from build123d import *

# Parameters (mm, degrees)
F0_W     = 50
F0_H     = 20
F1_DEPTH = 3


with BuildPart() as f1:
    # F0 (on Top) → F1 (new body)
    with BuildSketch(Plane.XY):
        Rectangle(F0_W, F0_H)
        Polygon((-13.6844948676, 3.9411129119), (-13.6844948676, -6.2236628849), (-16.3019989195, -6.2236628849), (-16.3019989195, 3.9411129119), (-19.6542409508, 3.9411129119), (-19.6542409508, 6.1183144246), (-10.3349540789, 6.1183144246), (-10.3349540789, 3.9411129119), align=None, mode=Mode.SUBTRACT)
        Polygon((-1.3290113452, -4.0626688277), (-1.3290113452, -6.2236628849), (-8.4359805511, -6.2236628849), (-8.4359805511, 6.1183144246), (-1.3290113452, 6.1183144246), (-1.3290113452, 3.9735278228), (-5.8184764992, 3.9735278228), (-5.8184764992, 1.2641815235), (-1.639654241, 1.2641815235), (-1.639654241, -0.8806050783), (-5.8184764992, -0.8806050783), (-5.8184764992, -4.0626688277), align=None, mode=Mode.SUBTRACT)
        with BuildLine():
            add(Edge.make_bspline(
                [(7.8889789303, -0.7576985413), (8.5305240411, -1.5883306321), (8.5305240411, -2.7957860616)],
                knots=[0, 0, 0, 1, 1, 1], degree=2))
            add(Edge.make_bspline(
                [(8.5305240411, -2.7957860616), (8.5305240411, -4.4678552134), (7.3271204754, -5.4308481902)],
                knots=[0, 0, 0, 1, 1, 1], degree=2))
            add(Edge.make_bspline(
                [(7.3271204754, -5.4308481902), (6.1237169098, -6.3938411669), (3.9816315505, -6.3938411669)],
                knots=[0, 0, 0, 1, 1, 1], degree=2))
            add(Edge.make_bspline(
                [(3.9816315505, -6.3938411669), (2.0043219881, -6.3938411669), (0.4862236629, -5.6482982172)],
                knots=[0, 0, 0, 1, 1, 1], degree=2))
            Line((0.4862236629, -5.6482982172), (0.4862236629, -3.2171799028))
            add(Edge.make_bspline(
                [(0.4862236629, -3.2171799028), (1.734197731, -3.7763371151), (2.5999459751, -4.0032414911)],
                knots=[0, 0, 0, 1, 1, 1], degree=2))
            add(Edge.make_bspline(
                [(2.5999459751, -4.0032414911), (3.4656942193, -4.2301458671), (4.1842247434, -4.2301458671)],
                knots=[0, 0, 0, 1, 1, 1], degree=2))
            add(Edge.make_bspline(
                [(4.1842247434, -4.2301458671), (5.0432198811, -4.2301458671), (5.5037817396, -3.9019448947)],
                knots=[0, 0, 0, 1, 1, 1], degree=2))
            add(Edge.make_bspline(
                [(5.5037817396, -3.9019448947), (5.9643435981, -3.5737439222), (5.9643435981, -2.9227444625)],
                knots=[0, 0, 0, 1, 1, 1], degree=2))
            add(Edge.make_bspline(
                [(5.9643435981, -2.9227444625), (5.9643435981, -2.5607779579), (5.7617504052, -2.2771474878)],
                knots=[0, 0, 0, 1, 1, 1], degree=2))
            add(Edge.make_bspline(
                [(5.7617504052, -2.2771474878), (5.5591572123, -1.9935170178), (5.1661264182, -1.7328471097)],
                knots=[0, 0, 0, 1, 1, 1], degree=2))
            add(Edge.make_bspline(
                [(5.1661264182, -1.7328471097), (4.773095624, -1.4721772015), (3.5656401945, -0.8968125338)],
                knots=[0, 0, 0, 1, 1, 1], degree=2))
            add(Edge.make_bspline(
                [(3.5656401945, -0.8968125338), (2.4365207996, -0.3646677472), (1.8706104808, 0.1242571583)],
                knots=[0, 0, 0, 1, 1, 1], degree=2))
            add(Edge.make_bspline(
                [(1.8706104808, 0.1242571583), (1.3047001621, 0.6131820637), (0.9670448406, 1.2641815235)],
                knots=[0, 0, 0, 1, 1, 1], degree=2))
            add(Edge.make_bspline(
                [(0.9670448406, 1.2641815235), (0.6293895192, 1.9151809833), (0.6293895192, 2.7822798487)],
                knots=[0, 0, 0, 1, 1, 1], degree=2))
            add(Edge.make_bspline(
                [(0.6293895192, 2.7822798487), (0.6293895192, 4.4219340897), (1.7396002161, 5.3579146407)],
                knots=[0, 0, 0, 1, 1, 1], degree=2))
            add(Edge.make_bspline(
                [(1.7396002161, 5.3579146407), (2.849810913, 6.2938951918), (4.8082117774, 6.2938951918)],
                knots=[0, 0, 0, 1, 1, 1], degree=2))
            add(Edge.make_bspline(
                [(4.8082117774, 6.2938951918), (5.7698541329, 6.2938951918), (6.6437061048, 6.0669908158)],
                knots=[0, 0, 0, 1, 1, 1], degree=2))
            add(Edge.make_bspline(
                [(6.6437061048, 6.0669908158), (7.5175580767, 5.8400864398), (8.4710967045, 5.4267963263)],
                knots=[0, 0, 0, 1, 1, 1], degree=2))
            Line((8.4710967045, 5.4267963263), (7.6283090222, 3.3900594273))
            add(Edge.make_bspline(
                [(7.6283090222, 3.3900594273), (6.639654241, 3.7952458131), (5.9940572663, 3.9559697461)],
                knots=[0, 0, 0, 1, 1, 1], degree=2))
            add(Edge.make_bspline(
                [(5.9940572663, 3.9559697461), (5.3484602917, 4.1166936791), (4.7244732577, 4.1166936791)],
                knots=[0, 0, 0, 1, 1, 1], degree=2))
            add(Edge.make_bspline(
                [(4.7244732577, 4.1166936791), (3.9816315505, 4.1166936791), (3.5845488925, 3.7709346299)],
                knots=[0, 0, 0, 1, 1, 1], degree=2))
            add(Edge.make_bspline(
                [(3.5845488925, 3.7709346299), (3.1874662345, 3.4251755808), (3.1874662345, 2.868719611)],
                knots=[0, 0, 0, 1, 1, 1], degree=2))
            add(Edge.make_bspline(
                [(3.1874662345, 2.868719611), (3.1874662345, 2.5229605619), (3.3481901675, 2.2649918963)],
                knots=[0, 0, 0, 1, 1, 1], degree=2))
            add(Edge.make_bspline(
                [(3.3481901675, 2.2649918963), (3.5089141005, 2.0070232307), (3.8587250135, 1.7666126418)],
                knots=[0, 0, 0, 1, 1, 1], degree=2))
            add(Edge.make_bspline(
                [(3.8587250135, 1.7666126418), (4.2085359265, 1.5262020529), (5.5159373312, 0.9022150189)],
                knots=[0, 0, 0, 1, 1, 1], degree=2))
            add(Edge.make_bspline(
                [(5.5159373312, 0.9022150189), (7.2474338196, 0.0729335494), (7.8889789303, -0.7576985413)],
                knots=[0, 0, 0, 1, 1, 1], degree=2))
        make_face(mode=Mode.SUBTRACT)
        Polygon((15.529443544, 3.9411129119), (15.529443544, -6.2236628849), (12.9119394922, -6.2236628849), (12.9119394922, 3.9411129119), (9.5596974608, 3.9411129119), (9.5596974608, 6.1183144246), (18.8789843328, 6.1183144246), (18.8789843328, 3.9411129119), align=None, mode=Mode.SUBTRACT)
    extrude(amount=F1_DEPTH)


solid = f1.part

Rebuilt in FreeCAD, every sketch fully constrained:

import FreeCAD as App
import Part
import Sketcher

V = App.Vector
Q = App.Units.Quantity

doc = App.newDocument("Part")
body = doc.addObject("PartDesign::Body", "Body")

sketch1 = body.newObject("Sketcher::SketchObject", "Sketch")
sketch1.AttachmentSupport = (doc.getObject("XY_Plane"), [""])
sketch1.MapMode = "FlatFace"
sketch1.addGeometry(Part.LineSegment(V(-25, 10, 0), V(-25, -10, 0)), False)
sketch1.addGeometry(Part.LineSegment(V(-25, -10, 0), V(25, -10, 0)), False)
sketch1.addGeometry(Part.LineSegment(V(25, -10, 0), V(25, 10, 0)), False)
sketch1.addGeometry(Part.LineSegment(V(25, 10, 0), V(-25, 10, 0)), False)
sketch1.addGeometry(Part.LineSegment(V(-10.334954, 3.941113, 0), V(-13.684495, 3.941113, 0)), False)
sketch1.addGeometry(Part.LineSegment(V(-13.684495, 3.941113, 0), V(-13.684495, -6.223663, 0)), False)
sketch1.addGeometry(Part.LineSegment(V(-13.684495, -6.223663, 0), V(-16.301999, -6.223663, 0)), False)
sketch1.addGeometry(Part.LineSegment(V(-16.301999, -6.223663, 0), V(-16.301999, 3.941113, 0)), False)
sketch1.addGeometry(Part.LineSegment(V(-16.301999, 3.941113, 0), V(-19.654241, 3.941113, 0)), False)
sketch1.addGeometry(Part.LineSegment(V(-19.654241, 3.941113, 0), V(-19.654241, 6.118314, 0)), False)
sketch1.addGeometry(Part.LineSegment(V(-19.654241, 6.118314, 0), V(-10.334954, 6.118314, 0)), False)
sketch1.addGeometry(Part.LineSegment(V(-10.334954, 6.118314, 0), V(-10.334954, 3.941113, 0)), False)
sketch1.addGeometry(Part.LineSegment(V(-5.818476, -4.062669, 0), V(-1.329011, -4.062669, 0)), False)
sketch1.addGeometry(Part.LineSegment(V(-1.329011, -4.062669, 0), V(-1.329011, -6.223663, 0)), False)
sketch1.addGeometry(Part.LineSegment(V(-1.329011, -6.223663, 0), V(-8.435981, -6.223663, 0)), False)
sketch1.addGeometry(Part.LineSegment(V(-8.435981, -6.223663, 0), V(-8.435981, 6.118314, 0)), False)
sketch1.addGeometry(Part.LineSegment(V(-8.435981, 6.118314, 0), V(-1.329011, 6.118314, 0)), False)
sketch1.addGeometry(Part.LineSegment(V(-1.329011, 6.118314, 0), V(-1.329011, 3.973528, 0)), False)
sketch1.addGeometry(Part.LineSegment(V(-1.329011, 3.973528, 0), V(-5.818476, 3.973528, 0)), False)
sketch1.addGeometry(Part.LineSegment(V(-5.818476, 3.973528, 0), V(-5.818476, 1.264182, 0)), False)
sketch1.addGeometry(Part.LineSegment(V(-5.818476, 1.264182, 0), V(-1.639654, 1.264182, 0)), False)
sketch1.addGeometry(Part.LineSegment(V(-1.639654, 1.264182, 0), V(-1.639654, -0.880605, 0)), False)
sketch1.addGeometry(Part.LineSegment(V(-1.639654, -0.880605, 0), V(-5.818476, -0.880605, 0)), False)
sketch1.addGeometry(Part.LineSegment(V(-5.818476, -0.880605, 0), V(-5.818476, -4.062669, 0)), False)
sketch1.addGeometry(Part.LineSegment(V(18.878984, 3.941113, 0), V(15.529444, 3.941113, 0)), False)
sketch1.addGeometry(Part.LineSegment(V(15.529444, 3.941113, 0), V(15.529444, -6.223663, 0)), False)
sketch1.addGeometry(Part.LineSegment(V(15.529444, -6.223663, 0), V(12.911939, -6.223663, 0)), False)
sketch1.addGeometry(Part.LineSegment(V(12.911939, -6.223663, 0), V(12.911939, 3.941113, 0)), False)
sketch1.addGeometry(Part.LineSegment(V(12.911939, 3.941113, 0), V(9.559697, 3.941113, 0)), False)
sketch1.addGeometry(Part.LineSegment(V(9.559697, 3.941113, 0), V(9.559697, 6.118314, 0)), False)
sketch1.addGeometry(Part.LineSegment(V(9.559697, 6.118314, 0), V(18.878984, 6.118314, 0)), False)
sketch1.addGeometry(Part.LineSegment(V(18.878984, 6.118314, 0), V(18.878984, 3.941113, 0)), False)
sketch1.addGeometry(Part.BSplineCurve([V(5.515937, 0.902215, 0), V(7.247434, 0.072934, 0), V(7.888979, -0.757699, 0)], [3, 3], [0, 1], False, 2, [1, 1, 1], False), False)
sketch1.addGeometry(Part.BSplineCurve([V(7.888979, -0.757699, 0), V(8.530524, -1.588331, 0), V(8.530524, -4.467855, 0), V(7.32712, -5.430848, 0)], [3, 1, 3], [0, 1, 2.384787472], False, 2, [1, 1, 1, 1], False), False)
sketch1.addGeometry(Part.BSplineCurve([V(7.32712, -5.430848, 0), V(6.123717, -6.393841, 0), V(2.004322, -6.393841, 0), V(0.486224, -5.648298, 0)], [3, 1, 3], [0, 1, 1.923076923], False, 2, [1, 1, 1, 1], False), False)
sketch1.addGeometry(Part.LineSegment(V(0.486224, -5.648298, 0), V(0.486224, -3.21718, 0)), False)
sketch1.addGeometry(Part.BSplineCurve([V(0.486224, -3.21718, 0), V(1.734198, -3.776337, 0), V(2.599946, -4.003241, 0)], [3, 3], [0, 1], False, 2, [1, 1, 1], False), False)
sketch1.addGeometry(Part.BSplineCurve([V(2.599946, -4.003241, 0), V(3.465694, -4.230146, 0), V(5.04322, -4.230146, 0), V(5.503782, -3.901945, 0)], [3, 1, 3], [0, 1, 2.195488722], False, 2, [1, 1, 1, 1], False), False)
sketch1.addGeometry(Part.BSplineCurve([V(5.503782, -3.901945, 0), V(5.964344, -3.573744, 0), V(5.964344, -2.560778, 0), V(5.76175, -2.277147, 0)], [3, 1, 3], [0, 1, 1.556016598], False, 2, [1, 1, 1, 1], False), False)
sketch1.addGeometry(Part.BSplineCurve([V(5.76175, -2.277147, 0), V(5.559157, -1.993517, 0), V(5.166126, -1.732847, 0)], [3, 3], [0, 1], False, 2, [1, 1, 1], False), False)
sketch1.addGeometry(Part.BSplineCurve([V(5.166126, -1.732847, 0), V(4.773096, -1.472177, 0), V(3.56564, -0.896813, 0)], [3, 3], [0, 1], False, 2, [1, 1, 1], False), False)
sketch1.addGeometry(Part.BSplineCurve([V(3.56564, -0.896813, 0), V(2.436521, -0.364668, 0), V(1.87061, 0.124257, 0)], [3, 3], [0, 1], False, 2, [1, 1, 1], False), False)
sketch1.addGeometry(Part.BSplineCurve([V(1.87061, 0.124257, 0), V(1.3047, 0.613182, 0), V(0.967045, 1.264182, 0)], [3, 3], [0, 1], False, 2, [1, 1, 1], False), False)
sketch1.addGeometry(Part.BSplineCurve([V(0.967045, 1.264182, 0), V(0.62939, 1.915181, 0), V(0.62939, 4.421934, 0), V(1.7396, 5.357915, 0)], [3, 1, 3], [0, 1, 2.890965732], False, 2, [1, 1, 1, 1], False), False)
sketch1.addGeometry(Part.BSplineCurve([V(1.7396, 5.357915, 0), V(2.849811, 6.293895, 0), V(5.769854, 6.293895, 0), V(7.517558, 5.840086, 0), V(8.471097, 5.426796, 0)], [3, 1, 1, 3], [0, 1, 1.491034483, 1.982068966], False, 2, [1, 1, 1, 1, 1], False), False)
sketch1.addGeometry(Part.LineSegment(V(8.471097, 5.426796, 0), V(7.628309, 3.390059, 0)), False)
sketch1.addGeometry(Part.BSplineCurve([V(7.628309, 3.390059, 0), V(6.639654, 3.795246, 0), V(5.994057, 3.95597, 0)], [3, 3], [0, 1], False, 2, [1, 1, 1], False), False)
sketch1.addGeometry(Part.BSplineCurve([V(5.994057, 3.95597, 0), V(5.34846, 4.116694, 0), V(3.981632, 4.116694, 0), V(3.584549, 3.770935, 0)], [3, 1, 3], [0, 1, 2.190476191], False, 2, [1, 1, 1, 1], False), False)
sketch1.addGeometry(Part.BSplineCurve([V(3.584549, 3.770935, 0), V(3.187466, 3.425176, 0), V(3.187466, 2.522961, 0), V(3.508914, 2.007023, 0), V(4.208536, 1.526202, 0), V(5.515937, 0.902215, 0)], [3, 1, 1, 1, 3], [0, 1, 1.621359223, 2.242718446, 2.864077669], False, 2, [1, 1, 1, 1, 1, 1], False), False)
sketch1.addConstraint(Sketcher.Constraint("Block", 32))
sketch1.addConstraint(Sketcher.Constraint("Block", 33))
sketch1.addConstraint(Sketcher.Constraint("Block", 34))
sketch1.addConstraint(Sketcher.Constraint("Block", 36))
sketch1.addConstraint(Sketcher.Constraint("Block", 37))
sketch1.addConstraint(Sketcher.Constraint("Block", 38))
sketch1.addConstraint(Sketcher.Constraint("Block", 39))
sketch1.addConstraint(Sketcher.Constraint("Block", 40))
sketch1.addConstraint(Sketcher.Constraint("Block", 41))
sketch1.addConstraint(Sketcher.Constraint("Block", 42))
sketch1.addConstraint(Sketcher.Constraint("Block", 43))
sketch1.addConstraint(Sketcher.Constraint("Block", 44))
sketch1.addConstraint(Sketcher.Constraint("Block", 46))
sketch1.addConstraint(Sketcher.Constraint("Block", 47))
sketch1.addConstraint(Sketcher.Constraint("Block", 48))
sketch1.addConstraint(Sketcher.Constraint("Coincident", 0, 2, 1, 1))
sketch1.addConstraint(Sketcher.Constraint("Coincident", 1, 2, 2, 1))
sketch1.addConstraint(Sketcher.Constraint("Coincident", 2, 2, 3, 1))
sketch1.addConstraint(Sketcher.Constraint("Coincident", 3, 2, 0, 1))
sketch1.addConstraint(Sketcher.Constraint("Coincident", 4, 2, 5, 1))
sketch1.addConstraint(Sketcher.Constraint("Coincident", 5, 2, 6, 1))
sketch1.addConstraint(Sketcher.Constraint("Coincident", 6, 2, 7, 1))
sketch1.addConstraint(Sketcher.Constraint("Coincident", 7, 2, 8, 1))
sketch1.addConstraint(Sketcher.Constraint("Coincident", 8, 2, 9, 1))
sketch1.addConstraint(Sketcher.Constraint("Coincident", 9, 2, 10, 1))
sketch1.addConstraint(Sketcher.Constraint("Coincident", 10, 2, 11, 1))
sketch1.addConstraint(Sketcher.Constraint("Coincident", 11, 2, 4, 1))
sketch1.addConstraint(Sketcher.Constraint("Coincident", 12, 2, 13, 1))
sketch1.addConstraint(Sketcher.Constraint("Coincident", 13, 2, 14, 1))
sketch1.addConstraint(Sketcher.Constraint("Coincident", 14, 2, 15, 1))
sketch1.addConstraint(Sketcher.Constraint("Coincident", 15, 2, 16, 1))
sketch1.addConstraint(Sketcher.Constraint("Coincident", 16, 2, 17, 1))
sketch1.addConstraint(Sketcher.Constraint("Coincident", 17, 2, 18, 1))
sketch1.addConstraint(Sketcher.Constraint("Coincident", 18, 2, 19, 1))
sketch1.addConstraint(Sketcher.Constraint("Coincident", 19, 2, 20, 1))
sketch1.addConstraint(Sketcher.Constraint("Coincident", 20, 2, 21, 1))
sketch1.addConstraint(Sketcher.Constraint("Coincident", 21, 2, 22, 1))
sketch1.addConstraint(Sketcher.Constraint("Coincident", 22, 2, 23, 1))
sketch1.addConstraint(Sketcher.Constraint("Coincident", 23, 2, 12, 1))
sketch1.addConstraint(Sketcher.Constraint("Coincident", 24, 2, 25, 1))
sketch1.addConstraint(Sketcher.Constraint("Coincident", 25, 2, 26, 1))
sketch1.addConstraint(Sketcher.Constraint("Coincident", 26, 2, 27, 1))
sketch1.addConstraint(Sketcher.Constraint("Coincident", 27, 2, 28, 1))
sketch1.addConstraint(Sketcher.Constraint("Coincident", 28, 2, 29, 1))
sketch1.addConstraint(Sketcher.Constraint("Coincident", 29, 2, 30, 1))
sketch1.addConstraint(Sketcher.Constraint("Coincident", 30, 2, 31, 1))
sketch1.addConstraint(Sketcher.Constraint("Coincident", 31, 2, 24, 1))
sketch1.addConstraint(Sketcher.Constraint("Coincident", 34, 2, 35, 1))
sketch1.addConstraint(Sketcher.Constraint("Coincident", 35, 2, 36, 1))
sketch1.addConstraint(Sketcher.Constraint("Coincident", 44, 2, 45, 1))
sketch1.addConstraint(Sketcher.Constraint("Coincident", 45, 2, 46, 1))
sketch1.addConstraint(Sketcher.Constraint("Vertical", 0))
sketch1.addConstraint(Sketcher.Constraint("Horizontal", 1))
sketch1.addConstraint(Sketcher.Constraint("Vertical", 2))
sketch1.addConstraint(Sketcher.Constraint("Horizontal", 3))
sketch1.addConstraint(Sketcher.Constraint("Horizontal", 4))
sketch1.addConstraint(Sketcher.Constraint("Vertical", 5))
sketch1.addConstraint(Sketcher.Constraint("Horizontal", 6))
sketch1.addConstraint(Sketcher.Constraint("Vertical", 7))
sketch1.addConstraint(Sketcher.Constraint("Horizontal", 8))
sketch1.addConstraint(Sketcher.Constraint("Vertical", 9))
sketch1.addConstraint(Sketcher.Constraint("Horizontal", 10))
sketch1.addConstraint(Sketcher.Constraint("Vertical", 11))
sketch1.addConstraint(Sketcher.Constraint("Horizontal", 12))
sketch1.addConstraint(Sketcher.Constraint("Vertical", 13))
sketch1.addConstraint(Sketcher.Constraint("Horizontal", 14))
sketch1.addConstraint(Sketcher.Constraint("Vertical", 15))
sketch1.addConstraint(Sketcher.Constraint("Horizontal", 16))
sketch1.addConstraint(Sketcher.Constraint("Vertical", 17))
sketch1.addConstraint(Sketcher.Constraint("Horizontal", 18))
sketch1.addConstraint(Sketcher.Constraint("Vertical", 19))
sketch1.addConstraint(Sketcher.Constraint("Horizontal", 20))
sketch1.addConstraint(Sketcher.Constraint("Vertical", 21))
sketch1.addConstraint(Sketcher.Constraint("Horizontal", 22))
sketch1.addConstraint(Sketcher.Constraint("Vertical", 23))
sketch1.addConstraint(Sketcher.Constraint("Horizontal", 24))
sketch1.addConstraint(Sketcher.Constraint("Vertical", 25))
sketch1.addConstraint(Sketcher.Constraint("Horizontal", 26))
sketch1.addConstraint(Sketcher.Constraint("Vertical", 27))
sketch1.addConstraint(Sketcher.Constraint("Horizontal", 28))
sketch1.addConstraint(Sketcher.Constraint("Vertical", 29))
sketch1.addConstraint(Sketcher.Constraint("Horizontal", 30))
sketch1.addConstraint(Sketcher.Constraint("Vertical", 31))
sketch1.addConstraint(Sketcher.Constraint("Symmetric", 0, 2, 2, 2, -1, 1))
sketch1.addConstraint(Sketcher.Constraint("Horizontal", 4, 2, 7, 2))
sketch1.addConstraint(Sketcher.Constraint("Horizontal", 6, 2, 13, 2))
sketch1.addConstraint(Sketcher.Constraint("Horizontal", 10, 2, 15, 2))
sketch1.addConstraint(Sketcher.Constraint("Horizontal", 11, 2, 24, 2))
sketch1.addConstraint(Sketcher.Constraint("Horizontal", 14, 2, 25, 2))
sketch1.addConstraint(Sketcher.Constraint("Horizontal", 24, 2, 27, 2))
sketch1.addConstraint(Sketcher.Constraint("Horizontal", 16, 2, 29, 2))
sketch1.addConstraint(Sketcher.Constraint("Vertical", 13, 2, 16, 2))
sketch1.addConstraint(Sketcher.Constraint("Vertical", 19, 2, 22, 2))
sketch1.addConstraint(Sketcher.Constraint("Equal", 4, 24))
sketch1.addConstraint(Sketcher.Constraint("Equal", 6, 26))
sketch1.addConstraint(Sketcher.Constraint("Equal", 8, 28))
sketch1.addConstraint(Sketcher.Constraint("Equal", 17, 21))
sketch1.addConstraint(Sketcher.Constraint("DistanceX", 1, 1, 1, 2, Q("50 mm")))
sketch1.addConstraint(Sketcher.Constraint("DistanceY", 0, 2, 0, 1, Q("20 mm")))
sketch1.addConstraint(Sketcher.Constraint("DistanceY", 9, 1, 9, 2, Q("2.177202 mm")))
sketch1.addConstraint(Sketcher.Constraint("DistanceX", 6, 2, -1, 1, Q("16.301999 mm")))
sketch1.addConstraint(Sketcher.Constraint("DistanceX", 4, 2, 4, 1, Q("3.349541 mm")))
sketch1.addConstraint(Sketcher.Constraint("DistanceX", 14, 2, 14, 1, Q("7.106969 mm")))
sketch1.addConstraint(Sketcher.Constraint("DistanceX", 23, 2, 35, 2, Q("6.3047 mm")))
sketch1.addConstraint(Sketcher.Constraint("DistanceX", 6, 2, 6, 1, Q("2.617504 mm")))
sketch1.addConstraint(Sketcher.Constraint("DistanceX", 8, 2, 8, 1, Q("3.352242 mm")))
sketch1.addConstraint(Sketcher.Constraint("DistanceX", 12, 1, 12, 2, Q("4.489465 mm")))
sketch1.addConstraint(Sketcher.Constraint("DistanceX", 20, 1, 20, 2, Q("4.178822 mm")))
sketch1.addConstraint(Sketcher.Constraint("DistanceY", 5, 2, 5, 1, Q("10.164776 mm")))
sketch1.addConstraint(Sketcher.Constraint("DistanceY", 13, 2, 13, 1, Q("2.160994 mm")))
sketch1.addConstraint(Sketcher.Constraint("DistanceY", 17, 2, 17, 1, Q("2.144787 mm")))
sketch1.addConstraint(Sketcher.Constraint("DistanceY", 19, 2, 19, 1, Q("2.709346 mm")))
sketch1.addConstraint(Sketcher.Constraint("DistanceY", 12, 2, -1, 1, Q("4.062669 mm")))
sketch1.addConstraint(Sketcher.Constraint("DistanceX", -1, 1, 26, 2, Q("12.911939 mm")))
pad1 = body.newObject("PartDesign::Pad", "Pad")
pad1.Profile = sketch1
pad1.Length = 3

doc.recompute()
